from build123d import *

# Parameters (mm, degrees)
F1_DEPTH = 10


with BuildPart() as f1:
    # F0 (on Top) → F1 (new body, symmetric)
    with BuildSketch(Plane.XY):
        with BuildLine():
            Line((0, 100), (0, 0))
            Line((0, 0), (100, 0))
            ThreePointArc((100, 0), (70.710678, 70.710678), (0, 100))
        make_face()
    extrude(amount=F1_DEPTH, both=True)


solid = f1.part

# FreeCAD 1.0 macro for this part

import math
import FreeCAD as App
import Part
import Sketcher
Q = App.Units.Quantity

doc = App.newDocument("Part")
body = doc.addObject("PartDesign::Body", "Body")

# Sketch on XY plane
sketch1 = body.newObject("Sketcher::SketchObject", "Sketch")
sketch1.AttachmentSupport = (doc.getObject("XY_Plane"), [""])
sketch1.MapMode = "FlatFace"
sketch1.addGeometry(Part.LineSegment(App.Vector(0, 100, 0), App.Vector(0, 0, 0)), False)
sketch1.addGeometry(Part.LineSegment(App.Vector(0, 0, 0), App.Vector(100, 0, 0)), False)
sketch1.addGeometry(Part.ArcOfCircle(Part.Circle(App.Vector(0, 0, 0), App.Vector(0, 0, 1), 100), math.radians(0), math.radians(90)), False)
sketch1.addConstraint(Sketcher.Constraint("Coincident", 0, 2, 1, 1))
sketch1.addConstraint(Sketcher.Constraint("Coincident", 1, 2, 2, 1))
sketch1.addConstraint(Sketcher.Constraint("Coincident", 2, 2, 0, 1))
sketch1.addConstraint(Sketcher.Constraint("Vertical", 0))
sketch1.addConstraint(Sketcher.Constraint("Horizontal", 1))
sketch1.addConstraint(Sketcher.Constraint("Coincident", 2, 3, -1, 1))
sketch1.addConstraint(Sketcher.Constraint("Coincident", 0, 2, -1, 1))
sketch1.addConstraint(Sketcher.Constraint("Radius", 2, Q("100 mm")))
pad1 = body.newObject("PartDesign::Pad", "Pad")
pad1.Profile = sketch1
pad1.Length = 20
pad1.Midplane = True

doc.recompute()
